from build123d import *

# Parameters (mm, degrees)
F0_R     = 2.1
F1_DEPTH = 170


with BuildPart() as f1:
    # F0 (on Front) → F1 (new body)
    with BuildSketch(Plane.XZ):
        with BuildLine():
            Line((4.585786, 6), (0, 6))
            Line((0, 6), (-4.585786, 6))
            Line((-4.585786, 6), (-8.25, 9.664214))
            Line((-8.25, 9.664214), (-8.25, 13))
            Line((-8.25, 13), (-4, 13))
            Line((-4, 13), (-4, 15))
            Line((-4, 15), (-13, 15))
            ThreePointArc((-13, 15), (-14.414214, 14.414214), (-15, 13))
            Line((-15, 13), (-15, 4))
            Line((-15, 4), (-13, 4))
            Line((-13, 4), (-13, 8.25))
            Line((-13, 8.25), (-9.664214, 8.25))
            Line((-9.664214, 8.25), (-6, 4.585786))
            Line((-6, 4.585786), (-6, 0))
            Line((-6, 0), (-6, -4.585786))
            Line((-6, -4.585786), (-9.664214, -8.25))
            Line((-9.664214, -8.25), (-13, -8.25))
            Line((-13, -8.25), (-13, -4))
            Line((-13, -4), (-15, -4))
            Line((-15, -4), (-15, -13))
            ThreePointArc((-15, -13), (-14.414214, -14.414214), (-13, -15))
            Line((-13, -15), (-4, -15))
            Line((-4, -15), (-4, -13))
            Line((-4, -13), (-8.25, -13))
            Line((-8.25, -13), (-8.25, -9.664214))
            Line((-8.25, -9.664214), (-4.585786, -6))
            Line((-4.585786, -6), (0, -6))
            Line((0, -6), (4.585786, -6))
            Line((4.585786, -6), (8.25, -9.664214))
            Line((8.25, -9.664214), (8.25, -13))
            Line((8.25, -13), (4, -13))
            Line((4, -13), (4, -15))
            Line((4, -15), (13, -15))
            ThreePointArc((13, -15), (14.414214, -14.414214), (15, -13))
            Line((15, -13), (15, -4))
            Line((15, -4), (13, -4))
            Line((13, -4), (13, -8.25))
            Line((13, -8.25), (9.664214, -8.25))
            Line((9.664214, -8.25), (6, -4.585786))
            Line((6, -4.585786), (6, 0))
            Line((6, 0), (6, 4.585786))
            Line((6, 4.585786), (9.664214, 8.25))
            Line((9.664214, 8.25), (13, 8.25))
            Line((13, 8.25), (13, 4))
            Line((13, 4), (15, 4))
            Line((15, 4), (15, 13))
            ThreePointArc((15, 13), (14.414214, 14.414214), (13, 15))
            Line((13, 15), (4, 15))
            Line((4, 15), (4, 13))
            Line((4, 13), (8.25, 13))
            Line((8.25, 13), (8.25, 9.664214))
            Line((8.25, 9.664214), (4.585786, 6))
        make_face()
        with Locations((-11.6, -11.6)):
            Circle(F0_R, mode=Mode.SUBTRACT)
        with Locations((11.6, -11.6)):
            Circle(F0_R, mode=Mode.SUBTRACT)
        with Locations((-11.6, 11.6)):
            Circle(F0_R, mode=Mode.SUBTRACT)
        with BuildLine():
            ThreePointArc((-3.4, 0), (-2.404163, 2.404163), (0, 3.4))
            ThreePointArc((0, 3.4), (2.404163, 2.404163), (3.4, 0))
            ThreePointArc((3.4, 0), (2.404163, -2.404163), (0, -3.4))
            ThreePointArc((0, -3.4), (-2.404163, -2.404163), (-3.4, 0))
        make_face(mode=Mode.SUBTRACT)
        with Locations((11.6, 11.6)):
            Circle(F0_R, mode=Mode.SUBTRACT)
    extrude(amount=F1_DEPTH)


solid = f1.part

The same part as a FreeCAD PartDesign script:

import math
import FreeCAD as App
import Part
import Sketcher
Q = App.Units.Quantity

doc = App.newDocument("Part")
params = doc.addObject("Spreadsheet::Sheet", "Params")
for row, (alias, value) in enumerate([
    ("sketch1_radius", "1.999999 mm"),
    ("sketch1_diameter", "4.2 mm"),
    ("sketch1_radius2", "3.4 mm"),
    ("sketch1_width", "9 mm"),
    ("sketch1_width2", "4.25 mm"),
    ("pad1_length", "170 mm"),
], start=1):
    params.set(f"A{row}", alias)
    params.set(f"B{row}", "=" + value)
    params.setAlias(f"B{row}", alias)

body = doc.addObject("PartDesign::Body", "Body")

# Sketch on XZ plane
sketch1 = doc.addObject("Sketcher::SketchObject", "Sketch")
body.addObject(sketch1)
sketch1.AttachmentSupport = (doc.XZ_Plane, [""])
sketch1.MapMode = "FlatFace"
sketch1.addGeometry([
    Part.LineSegment(App.Vector(4.6, 6, 0), App.Vector(-4.6, 6, 0)),  # 0
    Part.LineSegment(App.Vector(-4.6, 6, 0), App.Vector(-8.2, 9.7, 0)),  # 1
    Part.LineSegment(App.Vector(-8.2, 9.7, 0), App.Vector(-8.2, 13, 0)),  # 2
    Part.LineSegment(App.Vector(-8.2, 13, 0), App.Vector(-4, 13, 0)),  # 3
    Part.LineSegment(App.Vector(-4, 13, 0), App.Vector(-4, 15, 0)),  # 4
    Part.LineSegment(App.Vector(-4, 15, 0), App.Vector(-13, 15, 0)),  # 5
    Part.ArcOfCircle(Part.Circle(App.Vector(-13, 13, 0), App.Vector(0, 0, 1), 2), math.radians(90), math.radians(180)),  # 6
    Part.LineSegment(App.Vector(-15, 13, 0), App.Vector(-15, 4, 0)),  # 7
    Part.LineSegment(App.Vector(-15, 4, 0), App.Vector(-13, 4, 0)),  # 8
    Part.LineSegment(App.Vector(-13, 4, 0), App.Vector(-13, 8.2, 0)),  # 9
    Part.LineSegment(App.Vector(-13, 8.2, 0), App.Vector(-9.7, 8.2, 0)),  # 10
    Part.LineSegment(App.Vector(-9.7, 8.2, 0), App.Vector(-6, 4.6, 0)),  # 11
    Part.LineSegment(App.Vector(-6, 4.6, 0), App.Vector(-6, -4.6, 0)),  # 12
    Part.LineSegment(App.Vector(-6, -4.6, 0), App.Vector(-9.7, -8.2, 0)),  # 13
    Part.LineSegment(App.Vector(-9.7, -8.2, 0), App.Vector(-13, -8.2, 0)),  # 14
    Part.LineSegment(App.Vector(-13, -8.2, 0), App.Vector(-13, -4, 0)),  # 15
    Part.LineSegment(App.Vector(-13, -4, 0), App.Vector(-15, -4, 0)),  # 16
    Part.LineSegment(App.Vector(-15, -4, 0), App.Vector(-15, -13, 0)),  # 17
    Part.ArcOfCircle(Part.Circle(App.Vector(-13, -13, 0), App.Vector(0, 0, 1), 2), math.radians(180), math.radians(270)),  # 18
    Part.LineSegment(App.Vector(-13, -15, 0), App.Vector(-4, -15, 0)),  # 19
    Part.LineSegment(App.Vector(-4, -15, 0), App.Vector(-4, -13, 0)),  # 20
    Part.LineSegment(App.Vector(-4, -13, 0), App.Vector(-8.2, -13, 0)),  # 21
    Part.LineSegment(App.Vector(-8.2, -13, 0), App.Vector(-8.2, -9.7, 0)),  # 22
    Part.LineSegment(App.Vector(-8.2, -9.7, 0), App.Vector(-4.6, -6, 0)),  # 23
    Part.LineSegment(App.Vector(-4.6, -6, 0), App.Vector(4.6, -6, 0)),  # 24
    Part.LineSegment(App.Vector(4.6, -6, 0), App.Vector(8.2, -9.7, 0)),  # 25
    Part.LineSegment(App.Vector(8.2, -9.7, 0), App.Vector(8.2, -13, 0)),  # 26
    Part.LineSegment(App.Vector(8.2, -13, 0), App.Vector(4, -13, 0)),  # 27
    Part.LineSegment(App.Vector(4, -13, 0), App.Vector(4, -15, 0)),  # 28
    Part.LineSegment(App.Vector(4, -15, 0), App.Vector(13, -15, 0)),  # 29
    Part.ArcOfCircle(Part.Circle(App.Vector(13, -13, 0), App.Vector(0, 0, 1), 2), math.radians(-90), math.radians(0)),  # 30
    Part.LineSegment(App.Vector(15, -13, 0), App.Vector(15, -4, 0)),  # 31
    Part.LineSegment(App.Vector(15, -4, 0), App.Vector(13, -4, 0)),  # 32
    Part.LineSegment(App.Vector(13, -4, 0), App.Vector(13, -8.2, 0)),  # 33
    Part.LineSegment(App.Vector(13, -8.2, 0), App.Vector(9.7, -8.2, 0)),  # 34
    Part.LineSegment(App.Vector(9.7, -8.2, 0), App.Vector(6, -4.6, 0)),  # 35
    Part.LineSegment(App.Vector(6, -4.6, 0), App.Vector(6, 4.6, 0)),  # 36
    Part.LineSegment(App.Vector(6, 4.6, 0), App.Vector(9.7, 8.2, 0)),  # 37
    Part.LineSegment(App.Vector(9.7, 8.2, 0), App.Vector(13, 8.2, 0)),  # 38
    Part.LineSegment(App.Vector(13, 8.2, 0), App.Vector(13, 4, 0)),  # 39
    Part.LineSegment(App.Vector(13, 4, 0), App.Vector(15, 4, 0)),  # 40
    Part.LineSegment(App.Vector(15, 4, 0), App.Vector(15, 13, 0)),  # 41
    Part.ArcOfCircle(Part.Circle(App.Vector(13, 13, 0), App.Vector(0, 0, 1), 2), math.radians(0), math.radians(90)),  # 42
    Part.LineSegment(App.Vector(13, 15, 0), App.Vector(4, 15, 0)),  # 43
    Part.LineSegment(App.Vector(4, 15, 0), App.Vector(4, 13, 0)),  # 44
    Part.LineSegment(App.Vector(4, 13, 0), App.Vector(8.2, 13, 0)),  # 45
    Part.LineSegment(App.Vector(8.2, 13, 0), App.Vector(8.2, 9.7, 0)),  # 46
    Part.LineSegment(App.Vector(8.2, 9.7, 0), App.Vector(4.6, 6, 0)),  # 47
    Part.Circle(App.Vector(-11.6, -11.6, 0), App.Vector(0, 0, 1), 2.1),  # 48
    Part.Circle(App.Vector(11.6, -11.6, 0), App.Vector(0, 0, 1), 2.1),  # 49
    Part.Circle(App.Vector(-11.6, 11.6, 0), App.Vector(0, 0, 1), 2.1),  # 50
    Part.ArcOfCircle(Part.Circle(App.Vector(0, 0, 0), App.Vector(0, 0, 1), 3.4), math.radians(-180), math.radians(-90)),  # 51
    Part.ArcOfCircle(Part.Circle(App.Vector(0, 0, 0), App.Vector(0, 0, 1), 3.4), math.radians(90), math.radians(180)),  # 52
    Part.ArcOfCircle(Part.Circle(App.Vector(0, 0, 0), App.Vector(0, 0, 1), 3.4), math.radians(0), math.radians(90)),  # 53
    Part.ArcOfCircle(Part.Circle(App.Vector(0, 0, 0), App.Vector(0, 0, 1), 3.4), math.radians(-90), math.radians(0)),  # 54
    Part.Circle(App.Vector(11.6, 11.6, 0), App.Vector(0, 0, 1), 2.1),  # 55
], False)
sketch1.addConstraint([
    Sketcher.Constraint("Coincident", 0, 2, 1, 1),
    Sketcher.Constraint("Coincident", 1, 2, 2, 1),
    Sketcher.Constraint("Coincident", 2, 2, 3, 1),
    Sketcher.Constraint("Coincident", 3, 2, 4, 1),
    Sketcher.Constraint("Coincident", 4, 2, 5, 1),
    Sketcher.Constraint("Tangent", 5, 2, 6, 1),
    Sketcher.Constraint("Tangent", 6, 2, 7, 1),
    Sketcher.Constraint("Coincident", 7, 2, 8, 1),
    Sketcher.Constraint("Coincident", 8, 2, 9, 1),
    Sketcher.Constraint("Coincident", 9, 2, 10, 1),
    Sketcher.Constraint("Coincident", 10, 2, 11, 1),
    Sketcher.Constraint("Coincident", 11, 2, 12, 1),
    Sketcher.Constraint("Coincident", 12, 2, 13, 1),
    Sketcher.Constraint("Coincident", 13, 2, 14, 1),
    Sketcher.Constraint("Coincident", 14, 2, 15, 1),
    Sketcher.Constraint("Coincident", 15, 2, 16, 1),
    Sketcher.Constraint("Coincident", 16, 2, 17, 1),
    Sketcher.Constraint("Tangent", 17, 2, 18, 1),
    Sketcher.Constraint("Tangent", 18, 2, 19, 1),
    Sketcher.Constraint("Coincident", 19, 2, 20, 1),
    Sketcher.Constraint("Coincident", 20, 2, 21, 1),
    Sketcher.Constraint("Coincident", 21, 2, 22, 1),
    Sketcher.Constraint("Coincident", 22, 2, 23, 1),
    Sketcher.Constraint("Coincident", 23, 2, 24, 1),
    Sketcher.Constraint("Coincident", 24, 2, 25, 1),
    Sketcher.Constraint("Coincident", 25, 2, 26, 1),
    Sketcher.Constraint("Coincident", 26, 2, 27, 1),
    Sketcher.Constraint("Coincident", 27, 2, 28, 1),
    Sketcher.Constraint("Coincident", 28, 2, 29, 1),
    Sketcher.Constraint("Tangent", 29, 2, 30, 1),
    Sketcher.Constraint("Tangent", 30, 2, 31, 1),
    Sketcher.Constraint("Coincident", 31, 2, 32, 1),
    Sketcher.Constraint("Coincident", 32, 2, 33, 1),
    Sketcher.Constraint("Coincident", 33, 2, 34, 1),
    Sketcher.Constraint("Coincident", 34, 2, 35, 1),
    Sketcher.Constraint("Coincident", 35, 2, 36, 1),
    Sketcher.Constraint("Coincident", 36, 2, 37, 1),
    Sketcher.Constraint("Coincident", 37, 2, 38, 1),
    Sketcher.Constraint("Coincident", 38, 2, 39, 1),
    Sketcher.Constraint("Coincident", 39, 2, 40, 1),
    Sketcher.Constraint("Coincident", 40, 2, 41, 1),
    Sketcher.Constraint("Tangent", 41, 2, 42, 1),
    Sketcher.Constraint("Tangent", 42, 2, 43, 1),
    Sketcher.Constraint("Coincident", 43, 2, 44, 1),
    Sketcher.Constraint("Coincident", 44, 2, 45, 1),
    Sketcher.Constraint("Coincident", 45, 2, 46, 1),
    Sketcher.Constraint("Coincident", 46, 2, 47, 1),
    Sketcher.Constraint("Coincident", 47, 2, 0, 1),
    Sketcher.Constraint("Tangent", 51, 1, 52, 2),
    Sketcher.Constraint("Tangent", 52, 1, 53, 2),
    Sketcher.Constraint("Tangent", 53, 1, 54, 2),
    Sketcher.Constraint("Tangent", 54, 1, 51, 2),
    Sketcher.Constraint("Horizontal", 0),
    Sketcher.Constraint("Vertical", 2),
    Sketcher.Constraint("Horizontal", 3),
    Sketcher.Constraint("Vertical", 4),
    Sketcher.Constraint("Horizontal", 5),
    Sketcher.Constraint("Vertical", 7),
    Sketcher.Constraint("Horizontal", 8),
    Sketcher.Constraint("Vertical", 9),
    Sketcher.Constraint("Horizontal", 10),
    Sketcher.Constraint("Vertical", 12),
    Sketcher.Constraint("Horizontal", 14),
    Sketcher.Constraint("Vertical", 15),
    Sketcher.Constraint("Horizontal", 16),
    Sketcher.Constraint("Vertical", 17),
    Sketcher.Constraint("Horizontal", 19),
    Sketcher.Constraint("Vertical", 20),
    Sketcher.Constraint("Horizontal", 21),
    Sketcher.Constraint("Vertical", 22),
    Sketcher.Constraint("Horizontal", 24),
    Sketcher.Constraint("Vertical", 26),
    Sketcher.Constraint("Horizontal", 27),
    Sketcher.Constraint("Vertical", 28),
    Sketcher.Constraint("Horizontal", 29),
    Sketcher.Constraint("Vertical", 31),
    Sketcher.Constraint("Horizontal", 32),
    Sketcher.Constraint("Vertical", 33),
    Sketcher.Constraint("Horizontal", 34),
    Sketcher.Constraint("Vertical", 36),
    Sketcher.Constraint("Horizontal", 38),
    Sketcher.Constraint("Vertical", 39),
    Sketcher.Constraint("Horizontal", 40),
    Sketcher.Constraint("Vertical", 41),
    Sketcher.Constraint("Horizontal", 43),
    Sketcher.Constraint("Vertical", 44),
    Sketcher.Constraint("Horizontal", 45),
    Sketcher.Constraint("Vertical", 46),
    Sketcher.Constraint("Coincident", 51, 3, -1, 1),
    Sketcher.Constraint("Equal", 6, 18),
    Sketcher.Constraint("Equal", 18, 30),
    Sketcher.Constraint("Equal", 30, 42),
    Sketcher.Constraint("Equal", 48, 49),
    Sketcher.Constraint("Equal", 49, 50),
    Sketcher.Constraint("Equal", 51, 52),
    Sketcher.Constraint("Equal", 50, 55),
    Sketcher.Constraint("Symmetric", 6, 3, 30, 3, -1, 1),
    Sketcher.Constraint("Symmetric", 18, 3, 42, 3, -1, 1),
    Sketcher.Constraint("Symmetric", 49, 3, 50, 3, -1, 1),
    Sketcher.Constraint("Symmetric", 48, 3, 55, 3, -1, 1),
    Sketcher.Constraint("Symmetric", 0, 2, 24, 2, -1, 1),
    Sketcher.Constraint("Symmetric", 1, 2, 25, 2, -1, 1),
    Sketcher.Constraint("Symmetric", 3, 2, 27, 2, -1, 1),
    Sketcher.Constraint("Symmetric", 8, 2, 32, 2, -1, 1),
    Sketcher.Constraint("Symmetric", 10, 2, 34, 2, -1, 1),
    Sketcher.Constraint("Symmetric", 11, 2, 35, 2, -1, 1),
    Sketcher.Constraint("Symmetric", 13, 2, 37, 2, -1, 1),
    Sketcher.Constraint("Symmetric", 15, 2, 39, 2, -1, 1),
    Sketcher.Constraint("Symmetric", 20, 2, 44, 2, -1, 1),
    Sketcher.Constraint("Symmetric", 22, 2, 46, 2, -1, 1),
    Sketcher.Constraint("Symmetric", 18, 3, 30, 3, -2),
    Sketcher.Constraint("Symmetric", 48, 3, 49, 3, -2),
    Sketcher.Constraint("Symmetric", 22, 2, 25, 2, -2),
    Sketcher.Constraint("Symmetric", 20, 2, 27, 2, -2),
    Sketcher.Constraint("Symmetric", 15, 2, 32, 2, -2),
    Sketcher.Constraint("Symmetric", 13, 2, 34, 2, -2),
    Sketcher.Constraint("PointOnObject", 51, 1, -1),
    Sketcher.Constraint("PointOnObject", 52, 1, -2),
    Sketcher.Constraint("PointOnObject", 53, 1, -1),
    Sketcher.Constraint("PointOnObject", 54, 1, -2),
    Sketcher.Constraint("Parallel", 1, 11),
    Sketcher.Constraint("Perpendicular", 11, 13),
    Sketcher.Constraint("Parallel", 13, 23),
    Sketcher.Constraint("Perpendicular", 35, 37),
    Sketcher.Constraint("Parallel", 37, 47),
    Sketcher.Constraint("Horizontal", 42, 3, 2, 2),
    Sketcher.Constraint("Horizontal", 12, 2, 35, 2),
    Sketcher.Constraint("Vertical", 5, 2, 8, 2),
    Sketcher.Constraint("Equal", 38, 2),
    Sketcher.Constraint("Equal", 43, 7),
    Sketcher.Constraint("Equal", 45, 9),
    Sketcher.Constraint("Equal", 24, 12),
    Sketcher.Constraint("Equal", 1, 11),
    Sketcher.Constraint("Radius", 6, Q("1.999999 mm")),
    Sketcher.Constraint("Diameter", 48, Q("4.2 mm")),
    Sketcher.Constraint("Radius", 51, Q("3.4 mm")),
    Sketcher.Constraint("DistanceX", 5, 2, 5, 1, Q("9 mm")),
    Sketcher.Constraint("DistanceX", 6, 3, -1, 1, Q("13.000001 mm")),
    Sketcher.Constraint("DistanceY", -1, 1, 0, 2, Q("6 mm")),
    Sketcher.Constraint("DistanceX", 3, 1, 3, 2, Q("4.25 mm")),
    Sketcher.Constraint("DistanceX", 48, 3, -1, 1, Q("11.6 mm")),
    Sketcher.Constraint("DistanceY", 48, 3, -1, 1, Q("11.6 mm")),
    Sketcher.Constraint("Distance", 1, Q("5.181981 mm")),
])
sketch1.setExpression("Constraints[133]", "Params.sketch1_radius")
sketch1.setExpression("Constraints[134]", "Params.sketch1_diameter")
sketch1.setExpression("Constraints[135]", "Params.sketch1_radius2")
sketch1.setExpression("Constraints[136]", "Params.sketch1_width")
sketch1.setExpression("Constraints[139]", "Params.sketch1_width2")
pad1 = doc.addObject("PartDesign::Pad", "Pad")
body.addObject(pad1)
pad1.Profile = sketch1
pad1.setExpression("Length", "Params.pad1_length")

doc.recompute()
